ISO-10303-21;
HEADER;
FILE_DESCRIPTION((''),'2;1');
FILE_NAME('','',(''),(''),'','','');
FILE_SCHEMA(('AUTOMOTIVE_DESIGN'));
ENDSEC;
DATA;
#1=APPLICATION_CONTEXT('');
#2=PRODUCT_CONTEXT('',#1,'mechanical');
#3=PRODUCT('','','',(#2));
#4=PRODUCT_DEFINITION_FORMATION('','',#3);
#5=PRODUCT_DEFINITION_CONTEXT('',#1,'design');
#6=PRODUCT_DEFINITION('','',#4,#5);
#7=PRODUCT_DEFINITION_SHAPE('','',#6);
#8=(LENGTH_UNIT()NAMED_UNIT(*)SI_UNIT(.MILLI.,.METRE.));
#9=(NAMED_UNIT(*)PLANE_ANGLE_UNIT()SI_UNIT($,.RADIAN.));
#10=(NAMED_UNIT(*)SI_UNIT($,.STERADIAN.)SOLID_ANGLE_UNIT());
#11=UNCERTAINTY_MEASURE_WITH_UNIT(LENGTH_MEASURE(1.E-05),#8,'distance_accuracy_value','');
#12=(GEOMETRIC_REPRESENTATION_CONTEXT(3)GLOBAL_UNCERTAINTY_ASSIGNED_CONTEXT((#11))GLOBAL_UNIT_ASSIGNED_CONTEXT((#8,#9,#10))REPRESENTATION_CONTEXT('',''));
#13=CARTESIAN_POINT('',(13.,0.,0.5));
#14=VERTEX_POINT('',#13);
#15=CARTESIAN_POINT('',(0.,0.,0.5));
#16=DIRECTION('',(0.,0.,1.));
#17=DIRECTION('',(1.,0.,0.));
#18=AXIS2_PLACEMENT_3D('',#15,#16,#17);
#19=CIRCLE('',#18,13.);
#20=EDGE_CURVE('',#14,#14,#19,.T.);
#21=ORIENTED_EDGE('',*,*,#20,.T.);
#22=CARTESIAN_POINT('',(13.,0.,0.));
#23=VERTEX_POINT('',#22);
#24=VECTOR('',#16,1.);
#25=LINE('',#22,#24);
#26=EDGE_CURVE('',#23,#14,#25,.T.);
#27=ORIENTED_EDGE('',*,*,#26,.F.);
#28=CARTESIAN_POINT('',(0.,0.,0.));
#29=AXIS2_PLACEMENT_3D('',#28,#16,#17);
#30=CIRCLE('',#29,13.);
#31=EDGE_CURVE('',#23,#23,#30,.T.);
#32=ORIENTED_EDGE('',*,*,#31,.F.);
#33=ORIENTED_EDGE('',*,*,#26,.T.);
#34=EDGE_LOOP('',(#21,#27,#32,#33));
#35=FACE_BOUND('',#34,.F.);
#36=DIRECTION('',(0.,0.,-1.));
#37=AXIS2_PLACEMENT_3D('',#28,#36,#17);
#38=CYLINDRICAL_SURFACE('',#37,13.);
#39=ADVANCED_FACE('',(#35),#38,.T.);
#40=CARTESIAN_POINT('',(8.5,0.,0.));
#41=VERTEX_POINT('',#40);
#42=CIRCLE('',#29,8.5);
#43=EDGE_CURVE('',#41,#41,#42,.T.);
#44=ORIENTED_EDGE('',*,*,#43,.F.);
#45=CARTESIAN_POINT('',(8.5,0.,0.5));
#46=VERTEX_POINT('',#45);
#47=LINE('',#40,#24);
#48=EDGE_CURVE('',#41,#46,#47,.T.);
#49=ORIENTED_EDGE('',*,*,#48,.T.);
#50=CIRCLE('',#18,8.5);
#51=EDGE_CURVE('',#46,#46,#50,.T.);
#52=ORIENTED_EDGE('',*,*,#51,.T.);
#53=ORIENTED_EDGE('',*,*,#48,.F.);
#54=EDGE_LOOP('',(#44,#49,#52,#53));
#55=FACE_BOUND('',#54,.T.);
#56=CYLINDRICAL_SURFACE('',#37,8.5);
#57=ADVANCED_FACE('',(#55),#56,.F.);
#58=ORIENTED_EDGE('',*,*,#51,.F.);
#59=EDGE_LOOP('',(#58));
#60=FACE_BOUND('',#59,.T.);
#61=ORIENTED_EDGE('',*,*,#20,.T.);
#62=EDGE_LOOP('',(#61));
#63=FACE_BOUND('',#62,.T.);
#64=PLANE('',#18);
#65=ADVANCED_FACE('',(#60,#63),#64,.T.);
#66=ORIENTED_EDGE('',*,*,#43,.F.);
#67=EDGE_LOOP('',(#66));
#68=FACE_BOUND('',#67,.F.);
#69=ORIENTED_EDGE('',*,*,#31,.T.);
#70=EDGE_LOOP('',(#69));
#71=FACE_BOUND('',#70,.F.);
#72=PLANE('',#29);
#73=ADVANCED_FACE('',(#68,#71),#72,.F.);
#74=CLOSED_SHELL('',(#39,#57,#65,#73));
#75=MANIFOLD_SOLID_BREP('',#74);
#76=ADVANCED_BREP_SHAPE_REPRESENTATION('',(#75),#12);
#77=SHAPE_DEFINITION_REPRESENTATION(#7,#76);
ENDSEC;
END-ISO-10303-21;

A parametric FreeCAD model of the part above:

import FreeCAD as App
import Part
import Sketcher
from FreeCAD import Vector

doc = App.newDocument("Part")
body = doc.addObject("PartDesign::Body", "Body")

# Sketch on XY plane
sketch1 = body.newObject("Sketcher::SketchObject", "Sketch")
sketch1.AttachmentSupport = (doc.getObject("XY_Plane"), [""])
sketch1.MapMode = "FlatFace"
sketch1.addGeometry([
    Part.Circle(Vector(0, 0, 0), Vector(0, 0, 1), 13),
    Part.Circle(Vector(0, 0, 0), Vector(0, 0, 1), 8),
], False)
sketch1.addConstraint([
    Sketcher.Constraint("Coincident", 0, 3, -1, 1),
    Sketcher.Constraint("Coincident", 1, 3, -1, 1),
    Sketcher.Constraint("Diameter", 0, 26.0),
    Sketcher.Constraint("Diameter", 1, 17.0),
])
pad1 = body.newObject("PartDesign::Pad", "Pad")
pad1.Profile = sketch1
pad1.Length = 0.5

doc.recompute()
